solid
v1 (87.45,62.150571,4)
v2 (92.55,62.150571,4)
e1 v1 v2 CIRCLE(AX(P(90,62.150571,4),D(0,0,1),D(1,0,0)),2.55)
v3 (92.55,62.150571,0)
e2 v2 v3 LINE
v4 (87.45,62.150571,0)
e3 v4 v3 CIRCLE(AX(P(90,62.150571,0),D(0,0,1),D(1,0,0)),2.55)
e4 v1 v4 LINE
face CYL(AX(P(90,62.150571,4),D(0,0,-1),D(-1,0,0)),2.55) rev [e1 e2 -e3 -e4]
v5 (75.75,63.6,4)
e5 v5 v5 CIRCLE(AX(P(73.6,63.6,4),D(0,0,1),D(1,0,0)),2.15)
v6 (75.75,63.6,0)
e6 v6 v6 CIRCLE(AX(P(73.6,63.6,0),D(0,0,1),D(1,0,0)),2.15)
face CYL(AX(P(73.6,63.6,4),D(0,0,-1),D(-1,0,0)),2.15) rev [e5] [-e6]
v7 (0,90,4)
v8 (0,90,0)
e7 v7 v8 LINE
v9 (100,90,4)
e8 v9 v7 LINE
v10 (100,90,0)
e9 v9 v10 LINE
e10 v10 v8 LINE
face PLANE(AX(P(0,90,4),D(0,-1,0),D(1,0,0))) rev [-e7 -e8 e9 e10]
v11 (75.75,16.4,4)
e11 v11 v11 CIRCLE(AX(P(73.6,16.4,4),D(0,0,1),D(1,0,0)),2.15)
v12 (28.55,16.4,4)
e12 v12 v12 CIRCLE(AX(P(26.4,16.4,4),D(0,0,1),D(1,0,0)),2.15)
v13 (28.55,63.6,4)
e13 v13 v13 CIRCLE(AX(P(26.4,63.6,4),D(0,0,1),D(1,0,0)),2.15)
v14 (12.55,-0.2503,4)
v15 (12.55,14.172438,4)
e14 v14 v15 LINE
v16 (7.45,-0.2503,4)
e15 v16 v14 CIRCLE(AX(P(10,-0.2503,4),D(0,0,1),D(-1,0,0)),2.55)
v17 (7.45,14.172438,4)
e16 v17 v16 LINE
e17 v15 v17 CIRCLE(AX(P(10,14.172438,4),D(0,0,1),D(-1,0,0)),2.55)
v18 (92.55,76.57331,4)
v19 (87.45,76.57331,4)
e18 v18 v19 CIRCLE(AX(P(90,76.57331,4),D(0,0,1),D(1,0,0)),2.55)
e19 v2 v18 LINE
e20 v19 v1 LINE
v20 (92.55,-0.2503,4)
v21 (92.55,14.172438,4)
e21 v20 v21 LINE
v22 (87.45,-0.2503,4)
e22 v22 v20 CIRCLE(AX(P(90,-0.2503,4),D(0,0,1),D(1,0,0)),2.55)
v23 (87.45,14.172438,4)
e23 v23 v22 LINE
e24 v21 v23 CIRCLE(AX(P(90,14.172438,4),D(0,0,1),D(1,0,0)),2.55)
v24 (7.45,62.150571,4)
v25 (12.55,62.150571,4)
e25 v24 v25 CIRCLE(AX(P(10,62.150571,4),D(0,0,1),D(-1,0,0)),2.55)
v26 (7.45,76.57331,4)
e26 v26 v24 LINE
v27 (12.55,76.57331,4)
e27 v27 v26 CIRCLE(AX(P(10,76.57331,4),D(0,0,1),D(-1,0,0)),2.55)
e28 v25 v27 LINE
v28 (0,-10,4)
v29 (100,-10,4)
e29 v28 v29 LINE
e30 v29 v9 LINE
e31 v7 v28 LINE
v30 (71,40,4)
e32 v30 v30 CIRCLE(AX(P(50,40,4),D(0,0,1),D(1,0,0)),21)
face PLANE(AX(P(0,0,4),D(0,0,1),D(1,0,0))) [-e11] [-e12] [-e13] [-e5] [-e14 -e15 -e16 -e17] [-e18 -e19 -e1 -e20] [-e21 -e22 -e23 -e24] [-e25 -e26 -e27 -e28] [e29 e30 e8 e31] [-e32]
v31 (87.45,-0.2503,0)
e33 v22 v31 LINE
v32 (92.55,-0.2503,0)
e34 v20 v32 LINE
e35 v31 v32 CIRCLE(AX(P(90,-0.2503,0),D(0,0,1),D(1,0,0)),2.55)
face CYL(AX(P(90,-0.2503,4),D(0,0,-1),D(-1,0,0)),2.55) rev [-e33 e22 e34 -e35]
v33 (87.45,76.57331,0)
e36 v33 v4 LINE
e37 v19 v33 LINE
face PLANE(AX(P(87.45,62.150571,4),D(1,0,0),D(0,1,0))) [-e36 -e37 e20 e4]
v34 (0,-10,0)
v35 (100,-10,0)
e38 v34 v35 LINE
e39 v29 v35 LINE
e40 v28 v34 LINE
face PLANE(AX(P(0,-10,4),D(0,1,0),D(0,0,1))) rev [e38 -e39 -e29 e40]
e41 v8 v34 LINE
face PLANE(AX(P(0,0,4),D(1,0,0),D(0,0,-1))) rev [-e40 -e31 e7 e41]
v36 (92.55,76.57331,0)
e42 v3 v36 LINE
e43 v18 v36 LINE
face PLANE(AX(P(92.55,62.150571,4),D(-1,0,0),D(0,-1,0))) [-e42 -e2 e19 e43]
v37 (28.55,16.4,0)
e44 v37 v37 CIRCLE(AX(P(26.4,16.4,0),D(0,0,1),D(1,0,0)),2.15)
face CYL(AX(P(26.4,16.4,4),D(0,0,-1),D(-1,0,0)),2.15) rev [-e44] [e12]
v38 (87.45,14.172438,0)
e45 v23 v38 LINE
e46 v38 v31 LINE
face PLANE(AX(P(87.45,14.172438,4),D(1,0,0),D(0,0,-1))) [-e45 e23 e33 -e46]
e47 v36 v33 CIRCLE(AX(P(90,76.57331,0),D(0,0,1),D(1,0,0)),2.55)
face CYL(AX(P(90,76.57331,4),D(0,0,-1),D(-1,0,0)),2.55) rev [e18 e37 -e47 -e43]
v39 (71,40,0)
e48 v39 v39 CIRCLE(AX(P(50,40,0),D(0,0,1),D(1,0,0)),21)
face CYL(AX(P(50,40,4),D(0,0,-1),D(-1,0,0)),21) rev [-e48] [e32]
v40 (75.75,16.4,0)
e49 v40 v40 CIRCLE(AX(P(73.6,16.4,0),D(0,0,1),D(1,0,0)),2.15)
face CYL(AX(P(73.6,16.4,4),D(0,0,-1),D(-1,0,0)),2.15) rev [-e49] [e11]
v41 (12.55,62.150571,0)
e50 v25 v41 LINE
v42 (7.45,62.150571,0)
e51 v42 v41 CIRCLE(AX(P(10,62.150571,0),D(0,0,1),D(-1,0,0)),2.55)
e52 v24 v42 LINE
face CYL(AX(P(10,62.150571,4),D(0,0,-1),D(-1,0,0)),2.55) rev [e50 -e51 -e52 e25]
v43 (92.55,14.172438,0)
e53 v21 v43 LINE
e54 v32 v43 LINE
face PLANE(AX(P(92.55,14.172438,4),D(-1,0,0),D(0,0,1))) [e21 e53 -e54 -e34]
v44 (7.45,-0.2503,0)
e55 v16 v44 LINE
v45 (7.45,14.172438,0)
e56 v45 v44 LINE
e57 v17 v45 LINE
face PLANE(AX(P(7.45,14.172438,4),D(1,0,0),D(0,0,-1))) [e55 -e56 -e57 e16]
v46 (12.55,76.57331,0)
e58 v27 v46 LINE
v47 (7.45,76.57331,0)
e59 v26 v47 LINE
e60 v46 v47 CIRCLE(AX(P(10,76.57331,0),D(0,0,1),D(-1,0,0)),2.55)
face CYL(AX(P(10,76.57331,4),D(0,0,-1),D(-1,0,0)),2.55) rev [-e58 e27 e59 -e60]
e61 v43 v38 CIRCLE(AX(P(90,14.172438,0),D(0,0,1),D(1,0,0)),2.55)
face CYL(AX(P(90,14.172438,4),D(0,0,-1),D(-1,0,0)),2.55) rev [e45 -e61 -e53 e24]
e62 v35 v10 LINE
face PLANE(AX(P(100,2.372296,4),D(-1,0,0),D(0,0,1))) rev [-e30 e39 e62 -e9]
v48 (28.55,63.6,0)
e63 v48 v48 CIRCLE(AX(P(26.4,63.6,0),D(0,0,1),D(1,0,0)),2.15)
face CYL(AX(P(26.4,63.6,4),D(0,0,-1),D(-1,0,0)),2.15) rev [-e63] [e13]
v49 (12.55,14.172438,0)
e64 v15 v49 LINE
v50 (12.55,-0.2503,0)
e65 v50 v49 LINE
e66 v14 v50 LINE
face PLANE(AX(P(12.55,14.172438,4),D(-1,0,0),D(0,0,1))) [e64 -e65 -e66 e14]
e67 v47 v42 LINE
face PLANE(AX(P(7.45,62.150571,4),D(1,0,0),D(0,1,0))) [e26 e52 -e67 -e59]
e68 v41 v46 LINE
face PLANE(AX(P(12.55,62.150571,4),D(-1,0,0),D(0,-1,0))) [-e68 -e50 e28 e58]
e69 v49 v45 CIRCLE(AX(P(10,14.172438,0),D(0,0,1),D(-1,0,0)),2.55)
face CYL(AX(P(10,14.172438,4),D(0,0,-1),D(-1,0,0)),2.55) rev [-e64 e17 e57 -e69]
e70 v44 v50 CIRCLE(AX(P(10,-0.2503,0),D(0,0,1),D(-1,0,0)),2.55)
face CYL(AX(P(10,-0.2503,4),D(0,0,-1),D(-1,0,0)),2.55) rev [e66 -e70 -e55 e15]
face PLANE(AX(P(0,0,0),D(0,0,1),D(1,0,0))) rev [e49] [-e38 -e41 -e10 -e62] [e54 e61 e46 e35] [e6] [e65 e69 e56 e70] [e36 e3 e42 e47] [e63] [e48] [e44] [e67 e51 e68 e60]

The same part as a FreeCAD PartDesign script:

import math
import FreeCAD as App
import Part
import Sketcher


def add_polygon(sketch, points):
    """Adds a closed chain of lines whose ends are joined by coincident constraints."""
    first, n = sketch.GeometryCount, len(points)
    for a, b in zip(points, points[1:] + points[:1]):
        sketch.addGeometry(Part.LineSegment(App.Vector(*a, 0), App.Vector(*b, 0)), False)
    for i in range(n):
        sketch.addConstraint(Sketcher.Constraint("Coincident", first + i, 2, first + (i + 1) % n, 1))

doc = App.newDocument("Part")
body = doc.addObject("PartDesign::Body", "Body")

sketch1 = doc.addObject("Sketcher::SketchObject", "Sketch")
body.addObject(sketch1)
sketch1.AttachmentSupport = (doc.XY_Plane, [""])
sketch1.MapMode = "FlatFace"
add_polygon(sketch1, [(0, 90), (0, -10), (100, -10), (100, 90)])
sketch1.addGeometry(Part.LineSegment(App.Vector(92.55, 14.172438, 0), App.Vector(92.55, -0.2503, 0)), False)
sketch1.addGeometry(Part.ArcOfCircle(Part.Circle(App.Vector(90, -0.2503, 0), App.Vector(0, 0, 1), 2.55), math.radians(180), math.radians(360)), False)
sketch1.addGeometry(Part.LineSegment(App.Vector(87.45, -0.2503, 0), App.Vector(87.45, 14.172438, 0)), False)
sketch1.addGeometry(Part.ArcOfCircle(Part.Circle(App.Vector(90, 14.172438, 0), App.Vector(0, 0, 1), 2.55), math.radians(0), math.radians(180)), False)
sketch1.addGeometry(Part.Circle(App.Vector(73.6, 16.4, 0), App.Vector(0, 0, 1), 2.15), False)
sketch1.addGeometry(Part.ArcOfCircle(Part.Circle(App.Vector(10, 14.172438, 0), App.Vector(0, 0, 1), 2.55), math.radians(0), math.radians(180)), False)
sketch1.addGeometry(Part.LineSegment(App.Vector(12.55, 14.172438, 0), App.Vector(12.55, -0.2503, 0)), False)
sketch1.addGeometry(Part.ArcOfCircle(Part.Circle(App.Vector(10, -0.2503, 0), App.Vector(0, 0, 1), 2.55), math.radians(180), math.radians(360)), False)
sketch1.addGeometry(Part.LineSegment(App.Vector(7.45, -0.2503, 0), App.Vector(7.45, 14.172438, 0)), False)
sketch1.addGeometry(Part.Circle(App.Vector(26.4, 16.4, 0), App.Vector(0, 0, 1), 2.15), False)
sketch1.addGeometry(Part.Circle(App.Vector(50, 40, 0), App.Vector(0, 0, 1), 21), False)
sketch1.addGeometry(Part.Circle(App.Vector(73.6, 63.6, 0), App.Vector(0, 0, 1), 2.15), False)
sketch1.addGeometry(Part.LineSegment(App.Vector(87.45, 62.150571, 0), App.Vector(87.45, 76.57331, 0)), False)
sketch1.addGeometry(Part.ArcOfCircle(Part.Circle(App.Vector(90, 76.57331, 0), App.Vector(0, 0, 1), 2.55), math.radians(0), math.radians(180)), False)
sketch1.addGeometry(Part.LineSegment(App.Vector(92.55, 76.57331, 0), App.Vector(92.55, 62.150571, 0)), False)
sketch1.addGeometry(Part.ArcOfCircle(Part.Circle(App.Vector(90, 62.150571, 0), App.Vector(0, 0, 1), 2.55), math.radians(180), math.radians(360)), False)
sketch1.addGeometry(Part.Circle(App.Vector(26.4, 63.6, 0), App.Vector(0, 0, 1), 2.15), False)
sketch1.addGeometry(Part.ArcOfCircle(Part.Circle(App.Vector(10, 62.150571, 0), App.Vector(0, 0, 1), 2.55), math.radians(180), math.radians(360)), False)
sketch1.addGeometry(Part.LineSegment(App.Vector(7.45, 62.150571, 0), App.Vector(7.45, 76.57331, 0)), False)
sketch1.addGeometry(Part.ArcOfCircle(Part.Circle(App.Vector(10, 76.57331, 0), App.Vector(0, 0, 1), 2.55), math.radians(0), math.radians(180)), False)
sketch1.addGeometry(Part.LineSegment(App.Vector(12.55, 76.57331, 0), App.Vector(12.55, 62.150571, 0)), False)
sketch1.addConstraint([
    Sketcher.Constraint("Tangent", 4, 2, 5, 2),
    Sketcher.Constraint("Tangent", 5, 1, 6, 1),
    Sketcher.Constraint("Tangent", 6, 2, 7, 2),
    Sketcher.Constraint("Tangent", 7, 1, 4, 1),
    Sketcher.Constraint("Tangent", 9, 1, 10, 1),
    Sketcher.Constraint("Tangent", 10, 2, 11, 2),
    Sketcher.Constraint("Tangent", 11, 1, 12, 1),
    Sketcher.Constraint("Tangent", 12, 2, 9, 2),
    Sketcher.Constraint("Tangent", 16, 2, 17, 2),
    Sketcher.Constraint("Tangent", 17, 1, 18, 1),
    Sketcher.Constraint("Tangent", 18, 2, 19, 2),
    Sketcher.Constraint("Tangent", 19, 1, 16, 1),
    Sketcher.Constraint("Tangent", 21, 1, 22, 1),
    Sketcher.Constraint("Tangent", 22, 2, 23, 2),
    Sketcher.Constraint("Tangent", 23, 1, 24, 1),
    Sketcher.Constraint("Tangent", 24, 2, 21, 2),
    Sketcher.Constraint("Vertical", 0),
    Sketcher.Constraint("Horizontal", 1),
    Sketcher.Constraint("Vertical", 2),
    Sketcher.Constraint("Horizontal", 3),
    Sketcher.Constraint("Vertical", 4),
    Sketcher.Constraint("Vertical", 6),
    Sketcher.Constraint("Vertical", 10),
    Sketcher.Constraint("Vertical", 12),
    Sketcher.Constraint("Vertical", 16),
    Sketcher.Constraint("Vertical", 18),
    Sketcher.Constraint("Vertical", 22),
    Sketcher.Constraint("Vertical", 24),
    Sketcher.Constraint("Equal", 7, 9),
    Sketcher.Constraint("Equal", 8, 13),
    Sketcher.Constraint("Equal", 13, 15),
    Sketcher.Constraint("Equal", 11, 17),
    Sketcher.Constraint("Equal", 15, 20),
    Sketcher.Constraint("Equal", 19, 21),
    Sketcher.Constraint("PointOnObject", 0, 2, -2),
    Sketcher.Constraint("Horizontal", 7, 3, 9, 3),
    Sketcher.Constraint("Horizontal", 5, 3, 11, 3),
    Sketcher.Constraint("Horizontal", 8, 3, 13, 3),
    Sketcher.Constraint("Horizontal", 15, 3, 20, 3),
    Sketcher.Constraint("Horizontal", 19, 3, 21, 3),
    Sketcher.Constraint("Horizontal", 17, 3, 23, 3),
    Sketcher.Constraint("Vertical", 8, 3, 15, 3),
    Sketcher.Constraint("Vertical", 7, 3, 17, 3),
    Sketcher.Constraint("Vertical", 13, 3, 20, 3),
    Sketcher.Constraint("Vertical", 11, 3, 21, 3),
    Sketcher.Constraint("Equal", 3, 0),
    Sketcher.Constraint("Equal", 12, 16),
    Sketcher.Constraint("Diameter", 14, 42.0),
    Sketcher.Constraint("Diameter", 8, 4.3),
    Sketcher.Constraint("DistanceX", 1, 1, 1, 2, 100.0),
    Sketcher.Constraint("Radius", 5, 2.55),
    Sketcher.Constraint("DistanceX", -1, 1, 5, 3, 90.0),
    Sketcher.Constraint("DistanceX", -1, 1, 9, 3, 10.0),
    Sketcher.Constraint("DistanceX", -1, 1, 14, 3, 50.0),
    Sketcher.Constraint("DistanceY", -1, 1, 14, 3, 40.0),
    Sketcher.Constraint("DistanceY", 0, 2, -1, 1, 10.0),
    Sketcher.Constraint("DistanceX", -1, 1, 8, 3, 73.6),
    Sketcher.Constraint("DistanceY", -1, 1, 8, 3, 16.4),
    Sketcher.Constraint("DistanceX", -1, 1, 13, 3, 26.4),
    Sketcher.Constraint("DistanceY", -1, 1, 15, 3, 63.6),
    Sketcher.Constraint("DistanceY", 4, 2, 4, 1, 14.422738),
    Sketcher.Constraint("DistanceY", 5, 3, -1, 1, 0.2503),
    Sketcher.Constraint("DistanceY", -1, 1, 17, 3, 76.57331),
])
pad1 = doc.addObject("PartDesign::Pad", "Pad")
body.addObject(pad1)
pad1.Profile = sketch1
pad1.Length = 4

doc.recompute()
